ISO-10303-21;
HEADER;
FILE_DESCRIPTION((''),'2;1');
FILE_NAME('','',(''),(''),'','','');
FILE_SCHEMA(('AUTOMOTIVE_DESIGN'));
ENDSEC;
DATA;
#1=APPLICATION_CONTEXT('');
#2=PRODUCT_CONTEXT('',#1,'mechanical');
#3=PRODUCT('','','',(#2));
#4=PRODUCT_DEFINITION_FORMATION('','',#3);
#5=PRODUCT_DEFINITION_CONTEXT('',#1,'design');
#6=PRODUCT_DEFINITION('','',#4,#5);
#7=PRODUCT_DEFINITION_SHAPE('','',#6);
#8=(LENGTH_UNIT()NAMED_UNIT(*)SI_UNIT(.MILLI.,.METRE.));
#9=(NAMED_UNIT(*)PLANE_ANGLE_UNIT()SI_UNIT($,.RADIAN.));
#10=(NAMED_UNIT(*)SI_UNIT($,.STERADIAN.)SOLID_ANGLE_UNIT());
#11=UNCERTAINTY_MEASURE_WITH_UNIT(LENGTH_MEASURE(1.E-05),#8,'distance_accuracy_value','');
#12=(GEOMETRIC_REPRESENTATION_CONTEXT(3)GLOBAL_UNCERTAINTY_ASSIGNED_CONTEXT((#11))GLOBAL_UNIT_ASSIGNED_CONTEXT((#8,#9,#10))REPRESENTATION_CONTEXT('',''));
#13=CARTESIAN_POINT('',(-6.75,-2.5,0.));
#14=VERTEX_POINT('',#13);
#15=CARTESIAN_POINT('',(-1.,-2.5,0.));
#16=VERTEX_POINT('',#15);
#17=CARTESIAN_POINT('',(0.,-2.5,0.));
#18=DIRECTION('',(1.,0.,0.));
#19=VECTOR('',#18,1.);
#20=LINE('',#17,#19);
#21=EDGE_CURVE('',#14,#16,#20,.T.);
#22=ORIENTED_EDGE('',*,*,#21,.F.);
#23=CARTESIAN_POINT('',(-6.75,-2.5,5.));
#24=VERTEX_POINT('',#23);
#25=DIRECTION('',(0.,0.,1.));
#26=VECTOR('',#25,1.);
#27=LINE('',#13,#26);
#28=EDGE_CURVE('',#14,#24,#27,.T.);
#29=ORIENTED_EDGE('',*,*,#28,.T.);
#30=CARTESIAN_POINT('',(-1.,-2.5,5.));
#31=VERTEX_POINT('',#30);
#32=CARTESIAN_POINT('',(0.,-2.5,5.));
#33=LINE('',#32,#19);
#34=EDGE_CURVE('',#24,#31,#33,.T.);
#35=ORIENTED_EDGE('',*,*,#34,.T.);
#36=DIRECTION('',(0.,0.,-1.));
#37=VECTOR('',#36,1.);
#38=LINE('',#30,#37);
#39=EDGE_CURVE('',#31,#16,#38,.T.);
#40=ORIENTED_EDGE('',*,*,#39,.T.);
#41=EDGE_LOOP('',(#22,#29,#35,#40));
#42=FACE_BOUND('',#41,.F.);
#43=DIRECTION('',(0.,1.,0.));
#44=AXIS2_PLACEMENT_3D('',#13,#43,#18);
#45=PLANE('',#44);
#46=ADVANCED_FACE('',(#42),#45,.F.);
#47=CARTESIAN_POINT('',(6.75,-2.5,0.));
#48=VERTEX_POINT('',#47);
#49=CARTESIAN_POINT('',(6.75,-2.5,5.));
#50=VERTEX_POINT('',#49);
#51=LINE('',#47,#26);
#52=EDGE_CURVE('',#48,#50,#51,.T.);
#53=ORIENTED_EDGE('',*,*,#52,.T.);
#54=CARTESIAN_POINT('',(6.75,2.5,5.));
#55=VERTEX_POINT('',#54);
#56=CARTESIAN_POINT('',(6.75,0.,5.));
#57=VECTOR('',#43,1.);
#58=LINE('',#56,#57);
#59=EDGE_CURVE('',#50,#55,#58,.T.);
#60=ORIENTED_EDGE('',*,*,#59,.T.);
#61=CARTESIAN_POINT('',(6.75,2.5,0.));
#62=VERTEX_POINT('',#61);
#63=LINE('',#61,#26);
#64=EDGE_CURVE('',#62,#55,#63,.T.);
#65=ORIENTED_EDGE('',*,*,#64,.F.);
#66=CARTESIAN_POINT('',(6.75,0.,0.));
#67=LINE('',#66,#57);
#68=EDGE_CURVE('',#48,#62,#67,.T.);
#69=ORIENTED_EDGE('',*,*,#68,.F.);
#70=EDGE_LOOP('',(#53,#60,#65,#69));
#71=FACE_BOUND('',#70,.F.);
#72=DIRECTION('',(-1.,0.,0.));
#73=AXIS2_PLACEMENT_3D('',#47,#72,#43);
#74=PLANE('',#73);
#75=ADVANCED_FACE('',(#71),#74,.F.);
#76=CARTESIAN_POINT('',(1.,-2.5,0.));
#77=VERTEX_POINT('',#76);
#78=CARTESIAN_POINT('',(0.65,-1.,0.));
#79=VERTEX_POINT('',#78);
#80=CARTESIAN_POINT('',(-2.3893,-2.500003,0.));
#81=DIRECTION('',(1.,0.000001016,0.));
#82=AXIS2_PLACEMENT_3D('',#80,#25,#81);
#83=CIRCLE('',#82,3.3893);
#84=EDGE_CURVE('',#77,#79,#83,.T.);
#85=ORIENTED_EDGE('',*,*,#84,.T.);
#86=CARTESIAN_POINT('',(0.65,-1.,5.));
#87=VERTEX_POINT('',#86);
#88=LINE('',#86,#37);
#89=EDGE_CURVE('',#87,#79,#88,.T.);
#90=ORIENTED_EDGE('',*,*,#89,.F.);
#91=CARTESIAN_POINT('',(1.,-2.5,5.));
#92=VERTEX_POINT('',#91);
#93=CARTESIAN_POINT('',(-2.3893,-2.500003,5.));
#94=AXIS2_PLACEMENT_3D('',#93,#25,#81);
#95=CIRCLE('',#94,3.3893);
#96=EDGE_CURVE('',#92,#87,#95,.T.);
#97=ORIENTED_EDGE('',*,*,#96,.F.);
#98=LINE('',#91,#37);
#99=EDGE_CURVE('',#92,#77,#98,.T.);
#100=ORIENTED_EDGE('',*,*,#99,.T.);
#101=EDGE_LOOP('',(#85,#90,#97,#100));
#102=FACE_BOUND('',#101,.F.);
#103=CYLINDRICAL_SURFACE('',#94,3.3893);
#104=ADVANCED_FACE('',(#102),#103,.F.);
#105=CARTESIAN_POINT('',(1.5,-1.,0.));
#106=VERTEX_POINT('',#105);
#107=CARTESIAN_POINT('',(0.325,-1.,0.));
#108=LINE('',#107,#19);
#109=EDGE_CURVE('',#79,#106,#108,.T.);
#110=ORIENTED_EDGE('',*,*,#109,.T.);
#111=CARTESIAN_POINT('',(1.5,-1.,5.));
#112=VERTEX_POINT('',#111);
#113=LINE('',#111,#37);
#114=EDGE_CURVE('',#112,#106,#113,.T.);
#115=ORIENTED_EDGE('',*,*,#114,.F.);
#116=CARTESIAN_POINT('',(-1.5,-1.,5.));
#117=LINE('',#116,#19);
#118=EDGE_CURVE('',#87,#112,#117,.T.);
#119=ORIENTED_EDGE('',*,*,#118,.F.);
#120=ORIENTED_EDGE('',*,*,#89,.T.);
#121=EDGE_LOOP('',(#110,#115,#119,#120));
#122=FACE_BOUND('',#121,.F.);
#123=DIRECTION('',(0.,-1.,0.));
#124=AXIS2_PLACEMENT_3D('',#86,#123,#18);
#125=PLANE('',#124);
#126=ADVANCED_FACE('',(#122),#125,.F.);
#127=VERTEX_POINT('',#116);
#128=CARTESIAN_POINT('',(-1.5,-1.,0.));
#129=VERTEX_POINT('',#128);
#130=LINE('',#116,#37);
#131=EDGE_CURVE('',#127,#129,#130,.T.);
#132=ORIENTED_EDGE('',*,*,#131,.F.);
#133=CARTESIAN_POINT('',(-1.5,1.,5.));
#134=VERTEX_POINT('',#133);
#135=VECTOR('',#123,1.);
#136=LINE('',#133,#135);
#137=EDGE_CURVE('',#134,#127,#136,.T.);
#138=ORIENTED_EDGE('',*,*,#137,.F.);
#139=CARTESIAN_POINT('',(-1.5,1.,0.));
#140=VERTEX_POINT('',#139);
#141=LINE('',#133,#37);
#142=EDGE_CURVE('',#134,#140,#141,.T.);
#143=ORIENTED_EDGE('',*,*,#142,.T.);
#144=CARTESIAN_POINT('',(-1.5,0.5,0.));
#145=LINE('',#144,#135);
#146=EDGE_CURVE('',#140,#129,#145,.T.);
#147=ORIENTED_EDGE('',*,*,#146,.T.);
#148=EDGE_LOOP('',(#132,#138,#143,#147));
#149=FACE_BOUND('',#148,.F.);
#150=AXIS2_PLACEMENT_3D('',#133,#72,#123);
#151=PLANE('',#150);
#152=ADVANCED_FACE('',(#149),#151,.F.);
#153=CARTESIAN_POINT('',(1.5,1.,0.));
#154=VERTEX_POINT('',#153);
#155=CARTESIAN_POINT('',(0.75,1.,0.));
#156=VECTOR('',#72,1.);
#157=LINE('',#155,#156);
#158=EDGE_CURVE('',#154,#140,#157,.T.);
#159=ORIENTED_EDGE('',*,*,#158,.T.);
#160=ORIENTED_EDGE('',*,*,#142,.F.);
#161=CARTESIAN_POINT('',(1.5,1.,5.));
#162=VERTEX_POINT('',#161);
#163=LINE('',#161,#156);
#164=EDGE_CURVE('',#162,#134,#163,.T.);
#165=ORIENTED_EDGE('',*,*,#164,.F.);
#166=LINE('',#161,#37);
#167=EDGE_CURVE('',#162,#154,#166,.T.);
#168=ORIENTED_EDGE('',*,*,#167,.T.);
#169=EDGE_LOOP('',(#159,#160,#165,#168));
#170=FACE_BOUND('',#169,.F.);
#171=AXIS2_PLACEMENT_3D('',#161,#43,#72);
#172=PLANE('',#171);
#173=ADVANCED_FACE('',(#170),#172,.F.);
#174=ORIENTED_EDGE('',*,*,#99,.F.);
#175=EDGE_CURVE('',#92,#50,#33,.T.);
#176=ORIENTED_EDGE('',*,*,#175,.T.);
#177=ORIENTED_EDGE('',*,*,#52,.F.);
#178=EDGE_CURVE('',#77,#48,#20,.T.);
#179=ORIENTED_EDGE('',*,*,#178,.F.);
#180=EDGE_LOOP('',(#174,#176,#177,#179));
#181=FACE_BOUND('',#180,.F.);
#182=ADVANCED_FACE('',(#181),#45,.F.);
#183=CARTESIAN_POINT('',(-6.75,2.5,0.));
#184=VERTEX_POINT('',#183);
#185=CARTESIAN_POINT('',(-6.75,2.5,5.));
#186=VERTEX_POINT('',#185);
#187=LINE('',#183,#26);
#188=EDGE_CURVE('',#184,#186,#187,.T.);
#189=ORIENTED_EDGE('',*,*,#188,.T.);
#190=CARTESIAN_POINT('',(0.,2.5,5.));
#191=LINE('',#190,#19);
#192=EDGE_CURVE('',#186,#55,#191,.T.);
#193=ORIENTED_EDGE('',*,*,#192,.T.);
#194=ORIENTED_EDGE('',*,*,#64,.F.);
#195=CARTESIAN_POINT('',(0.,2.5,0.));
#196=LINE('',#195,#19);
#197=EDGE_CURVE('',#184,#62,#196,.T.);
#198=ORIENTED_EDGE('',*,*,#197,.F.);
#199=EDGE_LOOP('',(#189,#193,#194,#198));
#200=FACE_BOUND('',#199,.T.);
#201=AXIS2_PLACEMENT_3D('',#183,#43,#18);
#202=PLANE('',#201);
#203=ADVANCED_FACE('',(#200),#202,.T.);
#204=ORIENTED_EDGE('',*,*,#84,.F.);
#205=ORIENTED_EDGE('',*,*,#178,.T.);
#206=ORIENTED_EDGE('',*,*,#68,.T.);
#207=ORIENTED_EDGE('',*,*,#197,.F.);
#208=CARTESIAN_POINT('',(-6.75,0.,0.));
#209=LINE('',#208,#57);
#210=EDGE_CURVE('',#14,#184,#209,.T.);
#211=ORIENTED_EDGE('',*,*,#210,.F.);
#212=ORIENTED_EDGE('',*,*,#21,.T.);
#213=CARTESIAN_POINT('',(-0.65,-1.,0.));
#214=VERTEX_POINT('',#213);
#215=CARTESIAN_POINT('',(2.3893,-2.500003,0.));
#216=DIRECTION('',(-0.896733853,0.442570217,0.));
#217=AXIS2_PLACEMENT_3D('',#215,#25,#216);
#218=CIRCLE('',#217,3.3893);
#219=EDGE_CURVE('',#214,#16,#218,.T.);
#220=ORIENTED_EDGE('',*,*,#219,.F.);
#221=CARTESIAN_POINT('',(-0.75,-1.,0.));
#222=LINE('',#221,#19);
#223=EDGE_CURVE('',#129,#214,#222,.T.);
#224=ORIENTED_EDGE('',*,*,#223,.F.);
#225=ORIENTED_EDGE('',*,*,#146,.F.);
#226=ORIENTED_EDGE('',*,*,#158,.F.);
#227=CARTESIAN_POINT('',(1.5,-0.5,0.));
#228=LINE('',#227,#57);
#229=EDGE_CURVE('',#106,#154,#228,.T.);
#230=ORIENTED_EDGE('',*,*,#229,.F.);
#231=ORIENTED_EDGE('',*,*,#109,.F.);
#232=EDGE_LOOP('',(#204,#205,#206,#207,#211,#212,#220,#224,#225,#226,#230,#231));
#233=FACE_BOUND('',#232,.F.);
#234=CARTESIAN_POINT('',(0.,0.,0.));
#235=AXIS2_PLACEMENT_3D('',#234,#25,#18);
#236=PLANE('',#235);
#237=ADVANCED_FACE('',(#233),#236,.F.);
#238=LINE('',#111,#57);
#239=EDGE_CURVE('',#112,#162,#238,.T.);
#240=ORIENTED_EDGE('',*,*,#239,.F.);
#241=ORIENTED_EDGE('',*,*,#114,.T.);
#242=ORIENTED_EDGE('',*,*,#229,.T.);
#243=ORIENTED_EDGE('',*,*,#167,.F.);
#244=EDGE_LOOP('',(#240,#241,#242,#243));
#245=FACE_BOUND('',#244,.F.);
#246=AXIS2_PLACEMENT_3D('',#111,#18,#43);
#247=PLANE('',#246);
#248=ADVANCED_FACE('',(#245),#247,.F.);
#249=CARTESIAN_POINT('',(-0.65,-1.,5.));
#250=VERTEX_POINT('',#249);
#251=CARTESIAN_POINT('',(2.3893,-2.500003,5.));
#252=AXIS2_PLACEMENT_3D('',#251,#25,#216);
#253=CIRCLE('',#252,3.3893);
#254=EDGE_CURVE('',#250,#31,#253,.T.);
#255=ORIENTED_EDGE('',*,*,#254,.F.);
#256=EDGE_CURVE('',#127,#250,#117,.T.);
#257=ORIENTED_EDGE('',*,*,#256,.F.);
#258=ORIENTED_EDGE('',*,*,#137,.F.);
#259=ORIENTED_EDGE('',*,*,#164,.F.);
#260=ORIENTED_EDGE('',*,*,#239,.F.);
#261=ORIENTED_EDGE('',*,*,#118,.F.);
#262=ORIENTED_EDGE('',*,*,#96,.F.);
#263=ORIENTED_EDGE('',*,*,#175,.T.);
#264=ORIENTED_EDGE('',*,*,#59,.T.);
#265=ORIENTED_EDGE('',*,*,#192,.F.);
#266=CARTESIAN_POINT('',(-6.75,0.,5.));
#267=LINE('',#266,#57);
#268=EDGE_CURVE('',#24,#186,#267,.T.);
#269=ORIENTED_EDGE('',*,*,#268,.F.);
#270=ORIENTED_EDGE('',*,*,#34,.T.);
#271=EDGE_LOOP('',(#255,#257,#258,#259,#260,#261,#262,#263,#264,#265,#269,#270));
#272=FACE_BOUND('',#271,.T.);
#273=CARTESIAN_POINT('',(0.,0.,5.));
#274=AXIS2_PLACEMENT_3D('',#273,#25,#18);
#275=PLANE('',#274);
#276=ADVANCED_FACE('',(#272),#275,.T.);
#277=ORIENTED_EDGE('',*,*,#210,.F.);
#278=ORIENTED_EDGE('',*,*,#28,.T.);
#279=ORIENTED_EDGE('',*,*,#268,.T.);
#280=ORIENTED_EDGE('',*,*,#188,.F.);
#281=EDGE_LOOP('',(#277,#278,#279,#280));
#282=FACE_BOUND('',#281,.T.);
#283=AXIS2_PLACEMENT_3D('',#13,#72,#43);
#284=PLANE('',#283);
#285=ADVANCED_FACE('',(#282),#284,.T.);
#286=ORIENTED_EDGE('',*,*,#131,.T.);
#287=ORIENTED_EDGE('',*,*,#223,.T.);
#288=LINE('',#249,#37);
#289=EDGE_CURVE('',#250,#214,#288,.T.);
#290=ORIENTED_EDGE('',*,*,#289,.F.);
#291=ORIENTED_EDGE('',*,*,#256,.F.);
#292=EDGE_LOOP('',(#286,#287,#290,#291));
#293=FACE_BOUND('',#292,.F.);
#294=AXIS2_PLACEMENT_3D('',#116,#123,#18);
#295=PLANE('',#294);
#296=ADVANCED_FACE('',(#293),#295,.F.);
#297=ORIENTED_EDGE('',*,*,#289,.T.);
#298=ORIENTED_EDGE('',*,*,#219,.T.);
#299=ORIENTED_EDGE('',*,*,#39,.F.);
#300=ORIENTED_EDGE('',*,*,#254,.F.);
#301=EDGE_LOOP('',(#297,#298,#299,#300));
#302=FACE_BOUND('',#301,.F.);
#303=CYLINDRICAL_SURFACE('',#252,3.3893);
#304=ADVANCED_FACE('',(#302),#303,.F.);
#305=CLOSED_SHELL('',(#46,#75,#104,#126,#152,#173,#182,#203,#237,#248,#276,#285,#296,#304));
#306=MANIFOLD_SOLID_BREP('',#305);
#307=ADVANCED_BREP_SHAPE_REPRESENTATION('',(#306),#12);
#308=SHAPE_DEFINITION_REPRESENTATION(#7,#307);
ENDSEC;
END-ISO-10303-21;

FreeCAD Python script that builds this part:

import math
import FreeCAD as App
import Part
import Sketcher
from FreeCAD import Vector
Q = App.Units.Quantity


def add_polygon(sketch, points):
    """Adds a closed chain of lines whose ends are joined by coincident constraints."""
    first, n = sketch.GeometryCount, len(points)
    for a, b in zip(points, points[1:] + points[:1]):
        sketch.addGeometry(Part.LineSegment(App.Vector(*a, 0), App.Vector(*b, 0)), False)
    for i in range(n):
        sketch.addConstraint(Sketcher.Constraint("Coincident", first + i, 2, first + (i + 1) % n, 1))

doc = App.newDocument("Part")
body = doc.addObject("PartDesign::Body", "Body")

sketch1 = body.newObject("Sketcher::SketchObject", "Sketch")
sketch1.AttachmentSupport = (doc.getObject("XY_Plane"), [""])
sketch1.MapMode = "FlatFace"
add_polygon(sketch1, [(-6.75, 2.5), (-6.75, -2.5), (6.75, -2.5), (6.75, 2.5)])
sketch1.addConstraint([
    Sketcher.Constraint("Vertical", 0),
    Sketcher.Constraint("Horizontal", 1),
    Sketcher.Constraint("Vertical", 2),
    Sketcher.Constraint("Horizontal", 3),
    Sketcher.Constraint("Symmetric", 0, 2, 2, 2, -1, 1),
    Sketcher.Constraint("DistanceY", 0, 2, 0, 1, Q("5 mm")),
    Sketcher.Constraint("DistanceX", 1, 1, 1, 2, Q("13.5 mm")),
])
pad1 = body.newObject("PartDesign::Pad", "Pad")
pad1.Profile = sketch1
pad1.Length = 5

sketch2 = body.newObject("Sketcher::SketchObject", "Sketch001")
sketch2.AttachmentSupport = (doc.getObject("XY_Plane"), [""])
sketch2.MapMode = "FlatFace"
sketch2.AttachmentOffset = App.Placement(Vector(0, 0, 5), App.Rotation())
sketch2.addGeometry([
    Part.LineSegment(Vector(1.5, -1, 0), Vector(1.5, 1, 0)),
    Part.LineSegment(Vector(1.5, 1, 0), Vector(-1.5, 1, 0)),
    Part.LineSegment(Vector(-1.5, 1, 0), Vector(-1.5, -1, 0)),
    Part.LineSegment(Vector(-1.5, -1, 0), Vector(-0.65, -1, 0)),
    Part.ArcOfCircle(Part.Circle(Vector(2.3893, -2.500003, 0), Vector(0, 0, 1), 3.3893), math.radians(153.732014), math.radians(179.999942)),
    Part.LineSegment(Vector(-1, -2.5, 0), Vector(1, -2.5, 0)),
    Part.ArcOfCircle(Part.Circle(Vector(-2.3893, -2.500003, 0), Vector(0, 0, 1), 3.3893), math.radians(0.000058), math.radians(26.267986)),
    Part.LineSegment(Vector(0.65, -1, 0), Vector(1.5, -1, 0)),
], False)
sketch2.addConstraint([
    Sketcher.Constraint("Coincident", 0, 2, 1, 1),
    Sketcher.Constraint("Coincident", 1, 2, 2, 1),
    Sketcher.Constraint("Coincident", 2, 2, 3, 1),
    Sketcher.Constraint("Coincident", 3, 2, 4, 1),
    Sketcher.Constraint("Coincident", 4, 2, 5, 1),
    Sketcher.Constraint("Coincident", 5, 2, 6, 1),
    Sketcher.Constraint("Coincident", 6, 2, 7, 1),
    Sketcher.Constraint("Coincident", 7, 2, 0, 1),
    Sketcher.Constraint("Vertical", 0),
    Sketcher.Constraint("Horizontal", 1),
    Sketcher.Constraint("Vertical", 2),
    Sketcher.Constraint("Horizontal", 3),
    Sketcher.Constraint("Horizontal", 5),
    Sketcher.Constraint("Horizontal", 7),
    Sketcher.Constraint("Equal", 4, 6),
    Sketcher.Constraint("Symmetric", 0, 2, 2, 2, -1, 1),
    Sketcher.Constraint("Symmetric", 4, 3, 6, 3, -2),
    Sketcher.Constraint("Horizontal", 3, 2, 6, 2),
    Sketcher.Constraint("Equal", 5, 0),
    Sketcher.Constraint("DistanceX", 1, 2, 1, 1, Q("3 mm")),
    Sketcher.Constraint("DistanceX", 5, 1, 5, 2, Q("2 mm")),
    Sketcher.Constraint("DistanceX", 3, 1, 3, 2, Q("0.85 mm")),
    Sketcher.Constraint("DistanceY", 4, 2, -1, 1, Q("2.5 mm")),
    Sketcher.Constraint("Radius", 4, Q("3.3893 mm")),
])
pocket1 = body.newObject("PartDesign::Pocket", "Pocket")
pocket1.Profile = sketch2
pocket1.Length = 25

doc.recompute()
